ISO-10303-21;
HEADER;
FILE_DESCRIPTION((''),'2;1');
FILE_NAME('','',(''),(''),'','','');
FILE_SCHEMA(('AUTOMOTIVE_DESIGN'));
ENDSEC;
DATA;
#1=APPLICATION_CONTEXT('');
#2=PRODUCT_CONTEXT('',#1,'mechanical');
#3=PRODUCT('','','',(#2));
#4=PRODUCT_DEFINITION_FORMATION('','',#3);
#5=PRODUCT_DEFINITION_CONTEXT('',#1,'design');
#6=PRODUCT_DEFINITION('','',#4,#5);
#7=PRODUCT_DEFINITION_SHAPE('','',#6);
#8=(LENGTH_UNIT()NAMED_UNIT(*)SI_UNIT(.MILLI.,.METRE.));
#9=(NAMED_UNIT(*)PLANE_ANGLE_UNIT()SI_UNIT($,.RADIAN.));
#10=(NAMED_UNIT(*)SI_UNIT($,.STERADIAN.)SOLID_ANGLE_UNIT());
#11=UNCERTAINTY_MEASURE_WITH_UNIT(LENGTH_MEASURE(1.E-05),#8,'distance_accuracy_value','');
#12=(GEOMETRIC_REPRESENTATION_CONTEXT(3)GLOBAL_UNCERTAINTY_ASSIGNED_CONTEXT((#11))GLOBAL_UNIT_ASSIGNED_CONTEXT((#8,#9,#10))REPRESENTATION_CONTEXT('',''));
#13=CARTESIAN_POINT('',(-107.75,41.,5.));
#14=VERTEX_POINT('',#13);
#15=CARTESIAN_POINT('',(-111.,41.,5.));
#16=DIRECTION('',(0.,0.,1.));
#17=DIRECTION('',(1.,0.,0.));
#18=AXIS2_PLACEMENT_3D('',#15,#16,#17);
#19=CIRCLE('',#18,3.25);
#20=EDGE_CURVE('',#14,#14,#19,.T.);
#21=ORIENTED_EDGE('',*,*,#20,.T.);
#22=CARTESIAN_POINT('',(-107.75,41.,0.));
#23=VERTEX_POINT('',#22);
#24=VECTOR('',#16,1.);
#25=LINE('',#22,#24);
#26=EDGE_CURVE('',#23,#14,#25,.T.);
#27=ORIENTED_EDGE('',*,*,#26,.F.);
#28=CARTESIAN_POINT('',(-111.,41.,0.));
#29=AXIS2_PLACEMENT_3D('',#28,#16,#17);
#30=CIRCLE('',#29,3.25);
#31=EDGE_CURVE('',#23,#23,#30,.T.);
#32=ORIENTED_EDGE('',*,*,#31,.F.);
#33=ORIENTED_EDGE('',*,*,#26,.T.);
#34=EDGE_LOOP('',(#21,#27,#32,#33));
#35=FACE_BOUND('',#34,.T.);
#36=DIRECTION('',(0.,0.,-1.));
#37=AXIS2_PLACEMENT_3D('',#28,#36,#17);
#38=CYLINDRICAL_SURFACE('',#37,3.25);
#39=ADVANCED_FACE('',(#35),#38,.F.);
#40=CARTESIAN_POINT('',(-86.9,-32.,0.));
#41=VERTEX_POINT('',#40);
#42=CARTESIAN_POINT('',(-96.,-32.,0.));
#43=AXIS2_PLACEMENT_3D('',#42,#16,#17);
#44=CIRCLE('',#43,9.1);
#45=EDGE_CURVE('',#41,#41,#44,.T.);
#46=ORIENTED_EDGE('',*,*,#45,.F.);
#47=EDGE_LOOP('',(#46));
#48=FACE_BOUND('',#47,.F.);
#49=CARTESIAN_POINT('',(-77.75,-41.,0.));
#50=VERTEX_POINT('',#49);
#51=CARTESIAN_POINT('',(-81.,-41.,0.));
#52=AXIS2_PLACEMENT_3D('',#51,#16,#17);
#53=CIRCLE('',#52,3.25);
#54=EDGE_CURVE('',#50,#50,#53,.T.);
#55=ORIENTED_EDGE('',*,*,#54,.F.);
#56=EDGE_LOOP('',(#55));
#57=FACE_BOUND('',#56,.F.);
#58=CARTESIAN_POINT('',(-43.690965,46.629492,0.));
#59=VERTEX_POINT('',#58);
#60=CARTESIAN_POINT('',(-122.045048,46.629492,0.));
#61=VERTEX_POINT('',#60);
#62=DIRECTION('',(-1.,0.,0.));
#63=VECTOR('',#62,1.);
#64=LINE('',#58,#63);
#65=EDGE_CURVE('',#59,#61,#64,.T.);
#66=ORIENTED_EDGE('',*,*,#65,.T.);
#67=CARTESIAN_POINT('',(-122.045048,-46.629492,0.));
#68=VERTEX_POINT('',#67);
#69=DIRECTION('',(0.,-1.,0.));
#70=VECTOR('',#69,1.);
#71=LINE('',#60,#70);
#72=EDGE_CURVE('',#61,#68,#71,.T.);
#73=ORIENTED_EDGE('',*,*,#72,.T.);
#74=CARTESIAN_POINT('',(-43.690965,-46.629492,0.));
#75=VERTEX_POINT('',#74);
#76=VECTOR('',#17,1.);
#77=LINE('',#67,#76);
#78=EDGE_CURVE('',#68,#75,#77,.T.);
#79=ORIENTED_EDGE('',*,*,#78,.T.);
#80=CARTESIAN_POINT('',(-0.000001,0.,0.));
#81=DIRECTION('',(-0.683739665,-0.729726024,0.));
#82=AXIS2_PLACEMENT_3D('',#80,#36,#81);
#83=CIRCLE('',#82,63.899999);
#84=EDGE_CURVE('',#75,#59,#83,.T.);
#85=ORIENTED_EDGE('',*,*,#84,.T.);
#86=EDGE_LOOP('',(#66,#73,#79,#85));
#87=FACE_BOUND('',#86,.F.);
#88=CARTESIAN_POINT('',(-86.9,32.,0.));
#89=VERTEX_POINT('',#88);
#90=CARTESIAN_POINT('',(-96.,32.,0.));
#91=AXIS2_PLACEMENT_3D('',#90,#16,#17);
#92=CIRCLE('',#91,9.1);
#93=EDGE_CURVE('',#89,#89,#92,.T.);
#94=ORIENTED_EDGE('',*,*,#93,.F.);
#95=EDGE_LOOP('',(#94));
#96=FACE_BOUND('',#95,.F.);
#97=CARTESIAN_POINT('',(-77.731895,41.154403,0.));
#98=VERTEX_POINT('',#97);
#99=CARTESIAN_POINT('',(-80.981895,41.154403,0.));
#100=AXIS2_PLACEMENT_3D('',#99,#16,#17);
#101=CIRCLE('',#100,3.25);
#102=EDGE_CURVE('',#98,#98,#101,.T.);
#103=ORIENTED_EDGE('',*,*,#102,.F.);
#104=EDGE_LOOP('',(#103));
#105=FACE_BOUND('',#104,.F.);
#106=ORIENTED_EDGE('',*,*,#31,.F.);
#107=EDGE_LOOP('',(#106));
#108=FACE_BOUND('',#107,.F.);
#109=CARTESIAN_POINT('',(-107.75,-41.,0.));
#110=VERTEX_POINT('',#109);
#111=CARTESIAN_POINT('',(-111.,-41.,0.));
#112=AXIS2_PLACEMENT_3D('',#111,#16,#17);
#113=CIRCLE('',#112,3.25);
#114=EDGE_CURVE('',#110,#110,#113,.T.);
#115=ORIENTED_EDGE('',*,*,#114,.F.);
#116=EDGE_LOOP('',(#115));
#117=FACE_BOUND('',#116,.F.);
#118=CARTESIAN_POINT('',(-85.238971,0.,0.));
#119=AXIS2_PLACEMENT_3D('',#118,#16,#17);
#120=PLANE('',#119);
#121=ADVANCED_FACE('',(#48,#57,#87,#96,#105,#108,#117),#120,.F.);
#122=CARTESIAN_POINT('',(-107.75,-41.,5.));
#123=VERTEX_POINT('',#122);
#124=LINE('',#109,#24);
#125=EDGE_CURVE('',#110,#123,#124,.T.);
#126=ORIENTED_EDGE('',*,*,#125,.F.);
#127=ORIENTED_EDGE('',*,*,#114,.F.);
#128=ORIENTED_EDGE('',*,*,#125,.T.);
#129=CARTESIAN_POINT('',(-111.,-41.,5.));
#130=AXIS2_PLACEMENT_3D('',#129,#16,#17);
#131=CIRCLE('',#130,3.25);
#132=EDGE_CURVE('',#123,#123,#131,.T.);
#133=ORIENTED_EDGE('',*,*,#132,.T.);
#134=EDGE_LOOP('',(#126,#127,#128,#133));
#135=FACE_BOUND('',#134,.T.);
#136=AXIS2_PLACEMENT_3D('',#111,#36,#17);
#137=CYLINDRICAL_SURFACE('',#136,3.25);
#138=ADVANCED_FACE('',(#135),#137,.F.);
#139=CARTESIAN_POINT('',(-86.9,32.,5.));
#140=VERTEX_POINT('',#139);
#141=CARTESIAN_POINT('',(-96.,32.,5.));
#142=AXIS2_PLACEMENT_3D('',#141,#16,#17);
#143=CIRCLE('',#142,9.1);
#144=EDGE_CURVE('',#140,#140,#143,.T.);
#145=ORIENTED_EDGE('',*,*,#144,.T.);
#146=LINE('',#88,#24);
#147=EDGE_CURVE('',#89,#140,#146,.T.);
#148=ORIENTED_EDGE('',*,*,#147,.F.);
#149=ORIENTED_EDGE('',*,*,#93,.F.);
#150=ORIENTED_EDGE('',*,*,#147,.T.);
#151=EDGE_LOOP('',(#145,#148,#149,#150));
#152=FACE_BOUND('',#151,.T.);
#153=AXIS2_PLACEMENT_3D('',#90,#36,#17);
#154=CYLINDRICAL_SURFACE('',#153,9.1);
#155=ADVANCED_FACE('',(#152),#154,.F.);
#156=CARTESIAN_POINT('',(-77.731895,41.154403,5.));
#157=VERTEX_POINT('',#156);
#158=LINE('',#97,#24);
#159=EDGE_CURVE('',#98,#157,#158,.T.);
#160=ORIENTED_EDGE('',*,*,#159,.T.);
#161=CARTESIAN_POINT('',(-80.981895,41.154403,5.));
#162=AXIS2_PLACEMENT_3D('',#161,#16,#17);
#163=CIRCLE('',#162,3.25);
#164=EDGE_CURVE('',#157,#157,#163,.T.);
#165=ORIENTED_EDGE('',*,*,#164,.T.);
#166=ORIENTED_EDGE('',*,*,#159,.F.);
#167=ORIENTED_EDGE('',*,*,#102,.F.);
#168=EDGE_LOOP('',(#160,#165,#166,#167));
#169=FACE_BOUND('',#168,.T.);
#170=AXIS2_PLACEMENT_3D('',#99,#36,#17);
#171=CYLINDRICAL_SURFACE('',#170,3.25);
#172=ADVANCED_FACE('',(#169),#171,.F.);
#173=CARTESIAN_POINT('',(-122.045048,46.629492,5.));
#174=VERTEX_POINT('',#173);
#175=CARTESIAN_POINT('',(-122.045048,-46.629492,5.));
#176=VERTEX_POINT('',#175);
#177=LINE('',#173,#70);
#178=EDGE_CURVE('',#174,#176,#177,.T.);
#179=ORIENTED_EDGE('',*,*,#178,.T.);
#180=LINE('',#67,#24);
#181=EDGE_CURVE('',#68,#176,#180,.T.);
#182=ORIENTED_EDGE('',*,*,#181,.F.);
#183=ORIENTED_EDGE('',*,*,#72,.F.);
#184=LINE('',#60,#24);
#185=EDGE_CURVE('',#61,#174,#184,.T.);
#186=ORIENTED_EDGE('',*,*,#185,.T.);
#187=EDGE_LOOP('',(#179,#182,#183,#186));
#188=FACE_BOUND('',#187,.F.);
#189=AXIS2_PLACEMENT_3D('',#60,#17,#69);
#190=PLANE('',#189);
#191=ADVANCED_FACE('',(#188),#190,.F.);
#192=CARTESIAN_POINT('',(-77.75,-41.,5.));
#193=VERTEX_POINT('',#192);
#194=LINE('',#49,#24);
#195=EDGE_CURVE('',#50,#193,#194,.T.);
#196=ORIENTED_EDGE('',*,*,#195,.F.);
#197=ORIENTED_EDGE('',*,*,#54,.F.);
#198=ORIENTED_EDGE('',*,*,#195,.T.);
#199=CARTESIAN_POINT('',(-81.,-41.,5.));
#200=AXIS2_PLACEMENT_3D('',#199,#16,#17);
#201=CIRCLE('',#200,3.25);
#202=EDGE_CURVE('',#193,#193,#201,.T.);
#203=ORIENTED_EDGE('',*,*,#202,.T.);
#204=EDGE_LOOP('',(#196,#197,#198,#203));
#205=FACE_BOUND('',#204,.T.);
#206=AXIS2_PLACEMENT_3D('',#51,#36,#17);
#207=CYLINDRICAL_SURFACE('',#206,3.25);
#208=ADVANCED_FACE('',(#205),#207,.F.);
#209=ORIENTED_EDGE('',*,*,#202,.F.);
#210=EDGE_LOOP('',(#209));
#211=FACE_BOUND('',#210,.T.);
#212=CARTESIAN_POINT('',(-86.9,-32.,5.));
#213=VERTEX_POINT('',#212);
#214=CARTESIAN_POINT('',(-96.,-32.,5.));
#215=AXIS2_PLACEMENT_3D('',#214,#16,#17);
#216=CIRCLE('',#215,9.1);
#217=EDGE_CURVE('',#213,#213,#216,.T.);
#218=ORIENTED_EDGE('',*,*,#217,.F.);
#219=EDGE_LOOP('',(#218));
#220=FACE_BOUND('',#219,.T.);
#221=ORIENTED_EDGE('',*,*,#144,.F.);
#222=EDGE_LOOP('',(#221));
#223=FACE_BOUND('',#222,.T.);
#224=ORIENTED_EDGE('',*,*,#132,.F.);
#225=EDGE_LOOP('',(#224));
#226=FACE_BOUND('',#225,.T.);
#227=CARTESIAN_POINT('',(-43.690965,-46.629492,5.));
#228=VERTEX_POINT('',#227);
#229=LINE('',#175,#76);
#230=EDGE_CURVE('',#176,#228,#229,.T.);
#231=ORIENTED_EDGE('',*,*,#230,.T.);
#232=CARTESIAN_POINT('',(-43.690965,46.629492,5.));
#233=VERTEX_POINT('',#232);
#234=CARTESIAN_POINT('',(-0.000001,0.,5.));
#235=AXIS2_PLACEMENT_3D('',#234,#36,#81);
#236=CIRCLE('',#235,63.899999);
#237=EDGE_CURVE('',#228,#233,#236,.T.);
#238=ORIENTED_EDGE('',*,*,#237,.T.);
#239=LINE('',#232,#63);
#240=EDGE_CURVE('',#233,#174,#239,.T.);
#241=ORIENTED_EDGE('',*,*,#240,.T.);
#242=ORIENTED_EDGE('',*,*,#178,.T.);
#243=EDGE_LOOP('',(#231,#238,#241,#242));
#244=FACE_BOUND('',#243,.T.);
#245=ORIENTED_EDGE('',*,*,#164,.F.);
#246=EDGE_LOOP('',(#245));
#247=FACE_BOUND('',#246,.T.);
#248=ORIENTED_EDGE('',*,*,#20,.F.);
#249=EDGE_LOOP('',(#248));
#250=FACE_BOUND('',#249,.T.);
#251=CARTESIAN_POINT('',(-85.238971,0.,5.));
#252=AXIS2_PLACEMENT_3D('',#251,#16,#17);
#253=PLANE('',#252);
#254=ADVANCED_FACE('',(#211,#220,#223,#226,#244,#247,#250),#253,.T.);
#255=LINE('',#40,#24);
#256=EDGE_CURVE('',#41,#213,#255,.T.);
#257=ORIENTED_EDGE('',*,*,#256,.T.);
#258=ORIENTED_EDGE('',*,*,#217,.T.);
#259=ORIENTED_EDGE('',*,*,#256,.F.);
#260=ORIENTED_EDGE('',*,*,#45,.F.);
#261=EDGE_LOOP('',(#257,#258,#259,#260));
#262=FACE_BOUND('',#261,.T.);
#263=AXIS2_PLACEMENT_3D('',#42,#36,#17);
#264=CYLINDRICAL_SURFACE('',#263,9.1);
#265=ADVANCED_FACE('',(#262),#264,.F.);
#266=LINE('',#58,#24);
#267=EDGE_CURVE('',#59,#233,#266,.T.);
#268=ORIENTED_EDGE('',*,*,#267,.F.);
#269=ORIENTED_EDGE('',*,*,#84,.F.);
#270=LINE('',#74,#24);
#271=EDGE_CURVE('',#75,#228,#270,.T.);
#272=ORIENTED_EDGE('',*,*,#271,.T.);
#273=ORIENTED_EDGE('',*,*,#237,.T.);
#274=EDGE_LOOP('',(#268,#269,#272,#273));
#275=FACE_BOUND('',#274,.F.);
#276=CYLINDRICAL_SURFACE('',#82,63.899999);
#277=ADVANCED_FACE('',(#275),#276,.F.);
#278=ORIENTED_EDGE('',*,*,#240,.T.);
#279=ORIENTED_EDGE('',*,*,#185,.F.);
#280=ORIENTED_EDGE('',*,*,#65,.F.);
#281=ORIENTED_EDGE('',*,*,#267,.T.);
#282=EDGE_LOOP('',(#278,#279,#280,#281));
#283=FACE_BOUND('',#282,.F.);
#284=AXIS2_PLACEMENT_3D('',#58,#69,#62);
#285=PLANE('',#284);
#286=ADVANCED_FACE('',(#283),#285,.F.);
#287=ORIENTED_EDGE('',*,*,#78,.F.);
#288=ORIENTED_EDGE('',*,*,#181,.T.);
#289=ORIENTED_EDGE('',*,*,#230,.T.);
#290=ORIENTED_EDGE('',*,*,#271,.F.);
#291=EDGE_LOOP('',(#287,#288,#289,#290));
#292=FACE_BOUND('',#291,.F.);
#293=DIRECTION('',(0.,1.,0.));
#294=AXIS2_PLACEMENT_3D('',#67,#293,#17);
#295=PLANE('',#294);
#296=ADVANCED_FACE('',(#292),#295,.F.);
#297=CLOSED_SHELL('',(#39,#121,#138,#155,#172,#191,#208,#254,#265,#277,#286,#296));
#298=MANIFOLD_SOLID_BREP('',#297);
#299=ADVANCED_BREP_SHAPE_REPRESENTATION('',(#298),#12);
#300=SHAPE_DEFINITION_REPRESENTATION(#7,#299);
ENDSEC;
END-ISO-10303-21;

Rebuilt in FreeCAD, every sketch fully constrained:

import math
import FreeCAD as App
import Part
import Sketcher

V = App.Vector

doc = App.newDocument("Part")
body = doc.addObject("PartDesign::Body", "Body")

# Sketch on XY plane
sketch1 = doc.addObject("Sketcher::SketchObject", "Sketch")
body.addObject(sketch1)
sketch1.AttachmentSupport = (doc.XY_Plane, [""])
sketch1.MapMode = "FlatFace"
sketch1.addGeometry([
    Part.ArcOfCircle(Part.Circle(V(0, 0, 0), V(0, 0, 1), 63.9), math.radians(133), math.radians(227)),  # 0
    Part.LineSegment(V(-43.7, 46.6, 0), V(-122, 46.6, 0)),  # 1
    Part.LineSegment(V(-122, 46.6, 0), V(-122, -46.6, 0)),  # 2
    Part.LineSegment(V(-122, -46.6, 0), V(-43.7, -46.6, 0)),  # 3
    Part.Circle(V(-111, -41, 0), V(0, 0, 1), 3.2),  # 4
    Part.Circle(V(-96, -32, 0), V(0, 0, 1), 9.1),  # 5
    Part.Circle(V(-81, -41, 0), V(0, 0, 1), 3.2),  # 6
    Part.Circle(V(-111, 41, 0), V(0, 0, 1), 3.2),  # 7
    Part.Circle(V(-96, 32, 0), V(0, 0, 1), 9.1),  # 8
    Part.Circle(V(-81, 41.2, 0), V(0, 0, 1), 3.2),  # 9
], False)
sketch1.addConstraint([
    Sketcher.Constraint("Coincident", 0, 1, 1, 1),
    Sketcher.Constraint("Coincident", 1, 2, 2, 1),
    Sketcher.Constraint("Coincident", 2, 2, 3, 1),
    Sketcher.Constraint("Coincident", 3, 2, 0, 2),
    Sketcher.Constraint("Horizontal", 1),
    Sketcher.Constraint("Vertical", 2),
    Sketcher.Constraint("Horizontal", 3),
    Sketcher.Constraint("Coincident", 0, 3, -1, 1),
    Sketcher.Constraint("Equal", 4, 6),
    Sketcher.Constraint("Equal", 6, 7),
    Sketcher.Constraint("Equal", 5, 8),
    Sketcher.Constraint("Equal", 7, 9),
    Sketcher.Constraint("Symmetric", 4, 3, 7, 3, -1),
    Sketcher.Constraint("Symmetric", 5, 3, 8, 3, -1),
    Sketcher.Constraint("Horizontal", 4, 3, 6, 3),
    Sketcher.Constraint("Vertical", 0, 1, 3, 2),
    Sketcher.Constraint("Diameter", 4, 6.5),
    Sketcher.Constraint("Diameter", 5, 18.2),
    Sketcher.Constraint("Radius", 0, 63.899999),
    Sketcher.Constraint("DistanceX", 4, 3, -1, 1, 111.0),
    Sketcher.Constraint("DistanceY", 4, 3, -1, 1, 41.0),
    Sketcher.Constraint("DistanceX", 5, 3, -1, 1, 96.0),
    Sketcher.Constraint("DistanceY", 5, 3, -1, 1, 32.0),
    Sketcher.Constraint("DistanceX", 6, 3, -1, 1, 81.0),
    Sketcher.Constraint("DistanceX", 1, 2, 1, 1, 78.354083),
    Sketcher.Constraint("DistanceY", 2, 2, 2, 1, 93.258984),
    Sketcher.Constraint("DistanceX", 9, 3, 0, 1, 37.29093),
    Sketcher.Constraint("DistanceY", 9, 3, 0, 1, 5.475089),
])
pad1 = doc.addObject("PartDesign::Pad", "Pad")
body.addObject(pad1)
pad1.Profile = sketch1
pad1.Length = 5

doc.recompute()
